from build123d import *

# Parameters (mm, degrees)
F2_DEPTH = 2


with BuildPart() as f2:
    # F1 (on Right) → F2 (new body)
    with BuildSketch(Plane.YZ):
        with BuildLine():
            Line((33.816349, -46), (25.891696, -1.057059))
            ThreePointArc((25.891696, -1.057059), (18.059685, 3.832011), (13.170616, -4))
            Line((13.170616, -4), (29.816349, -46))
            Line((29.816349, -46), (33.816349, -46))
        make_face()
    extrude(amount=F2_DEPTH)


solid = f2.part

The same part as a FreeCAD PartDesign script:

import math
import FreeCAD as App
import Part
import Sketcher

V = App.Vector
Q = App.Units.Quantity

doc = App.newDocument("Part")
body = doc.addObject("PartDesign::Body", "Body")

# Sketch on YZ plane
sketch1 = body.newObject("Sketcher::SketchObject", "Sketch")
sketch1.AttachmentSupport = (doc.getObject("YZ_Plane"), [""])
sketch1.MapMode = "FlatFace"
sketch1.addGeometry(Part.LineSegment(V(33.8, -46, 0), V(25.9, -1.1, 0)), False)
sketch1.addGeometry(Part.ArcOfCircle(Part.Circle(V(19.5, -2.5, 0), V(0, 0, 1), 6.5), math.radians(13), math.radians(193)), False)
sketch1.addGeometry(Part.LineSegment(V(13.2, -4, 0), V(29.8, -46, 0)), False)
sketch1.addGeometry(Part.LineSegment(V(29.8, -46, 0), V(33.8, -46, 0)), False)
sketch1.addConstraint(Sketcher.Constraint("Coincident", 0, 2, 1, 1))
sketch1.addConstraint(Sketcher.Constraint("Coincident", 1, 2, 2, 1))
sketch1.addConstraint(Sketcher.Constraint("Coincident", 2, 2, 3, 1))
sketch1.addConstraint(Sketcher.Constraint("Coincident", 3, 2, 0, 1))
sketch1.addConstraint(Sketcher.Constraint("Horizontal", 3))
sketch1.addConstraint(Sketcher.Constraint("DistanceX", 3, 1, 3, 2, 4.0))
sketch1.addConstraint(Sketcher.Constraint("Angle", 0, Q("100 deg")))
sketch1.addConstraint(Sketcher.Constraint("DistanceY", 1, 2, -1, 1, 4.0))
sketch1.addConstraint(Sketcher.Constraint("DistanceY", 2, 2, -1, 1, 46.0))
sketch1.addConstraint(Sketcher.Constraint("Radius", 1, 6.528529))
sketch1.addConstraint(Sketcher.Constraint("Distance", 0, 45.636258))
sketch1.addConstraint(Sketcher.Constraint("DistanceY", 1, 3, -1, 1, 2.528529))
sketch1.addConstraint(Sketcher.Constraint("DistanceX", -1, 1, 2, 2, 29.816349))
pad1 = body.newObject("PartDesign::Pad", "Pad")
pad1.Profile = sketch1
pad1.Length = 2

doc.recompute()
